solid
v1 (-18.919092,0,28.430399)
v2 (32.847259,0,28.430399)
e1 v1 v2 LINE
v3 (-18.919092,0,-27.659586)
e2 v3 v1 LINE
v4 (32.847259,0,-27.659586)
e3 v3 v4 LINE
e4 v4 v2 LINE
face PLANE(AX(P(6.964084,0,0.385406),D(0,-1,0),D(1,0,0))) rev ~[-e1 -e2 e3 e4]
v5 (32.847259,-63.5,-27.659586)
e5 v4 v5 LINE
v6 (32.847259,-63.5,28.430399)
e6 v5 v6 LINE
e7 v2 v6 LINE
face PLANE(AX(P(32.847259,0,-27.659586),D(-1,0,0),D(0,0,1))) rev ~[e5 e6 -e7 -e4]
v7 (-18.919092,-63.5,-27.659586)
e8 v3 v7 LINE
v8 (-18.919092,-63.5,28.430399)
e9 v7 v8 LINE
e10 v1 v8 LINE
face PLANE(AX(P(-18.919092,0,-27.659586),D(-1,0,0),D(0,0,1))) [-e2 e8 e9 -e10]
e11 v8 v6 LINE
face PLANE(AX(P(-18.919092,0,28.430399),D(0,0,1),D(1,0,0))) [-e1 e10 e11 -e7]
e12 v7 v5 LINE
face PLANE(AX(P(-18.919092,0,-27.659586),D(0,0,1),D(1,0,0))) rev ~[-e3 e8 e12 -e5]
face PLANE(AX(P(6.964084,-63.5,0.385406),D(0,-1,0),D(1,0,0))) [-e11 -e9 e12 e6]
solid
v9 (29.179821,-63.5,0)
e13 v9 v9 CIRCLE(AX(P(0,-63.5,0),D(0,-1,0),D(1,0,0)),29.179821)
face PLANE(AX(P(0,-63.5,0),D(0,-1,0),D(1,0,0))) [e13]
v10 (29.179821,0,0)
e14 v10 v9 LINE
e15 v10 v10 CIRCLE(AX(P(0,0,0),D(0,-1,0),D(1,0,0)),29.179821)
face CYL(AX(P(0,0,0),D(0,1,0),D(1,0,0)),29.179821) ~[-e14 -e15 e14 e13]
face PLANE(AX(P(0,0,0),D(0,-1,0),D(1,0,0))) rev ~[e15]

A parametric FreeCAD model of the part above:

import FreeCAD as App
import Part
import Sketcher
from FreeCAD import Vector
Q = App.Units.Quantity


def add_polygon(sketch, points):
    """Adds a closed chain of lines whose ends are joined by coincident constraints."""
    first, n = sketch.GeometryCount, len(points)
    for a, b in zip(points, points[1:] + points[:1]):
        sketch.addGeometry(Part.LineSegment(App.Vector(*a, 0), App.Vector(*b, 0)), False)
    for i in range(n):
        sketch.addConstraint(Sketcher.Constraint("Coincident", first + i, 2, first + (i + 1) % n, 1))

doc = App.newDocument("Part")
body = doc.addObject("PartDesign::Body", "Body")

# Sketch on XZ plane
sketch1 = body.newObject("Sketcher::SketchObject", "Sketch")
sketch1.AttachmentSupport = (doc.getObject("XZ_Plane"), [""])
sketch1.MapMode = "FlatFace"
sketch1.addGeometry(Part.Circle(Vector(0, 0, 0), Vector(0, 0, 1), 29), False)
sketch1.addConstraint([
    Sketcher.Constraint("Coincident", 0, 3, -1, 1),
    Sketcher.Constraint("Diameter", 0, 58.359642),
])
pad1 = body.newObject("PartDesign::Pad", "Pad")
pad1.Profile = sketch1
pad1.Length = Q("2.5 in")
body2 = doc.addObject("PartDesign::Body", "Body001")

# Sketch on XZ plane
sketch2 = body2.newObject("Sketcher::SketchObject", "Sketch001")
sketch2.AttachmentSupport = (doc.getObject("XZ_Plane001"), [""])
sketch2.MapMode = "FlatFace"
add_polygon(sketch2, [(-19, 28), (-19, -28), (33, -28), (33, 28)])  # lines 0-3
sketch2.addConstraint([
    Sketcher.Constraint("Vertical", 0),
    Sketcher.Constraint("Horizontal", 1),
    Sketcher.Constraint("Vertical", 2),
    Sketcher.Constraint("Horizontal", 3),
    Sketcher.Constraint("DistanceX", 1, 1, 1, 2, 51.766351),
    Sketcher.Constraint("DistanceY", -1, 1, 2, 2, 28.430399),
    Sketcher.Constraint("DistanceY", 0, 2, 0, 1, 56.089984),
    Sketcher.Constraint("DistanceX", 0, 2, -1, 1, 18.919092),
])
pad2 = body2.newObject("PartDesign::Pad", "Pad001")
pad2.Profile = sketch2
pad2.Length = Q("2.5 in")

doc.recompute()
